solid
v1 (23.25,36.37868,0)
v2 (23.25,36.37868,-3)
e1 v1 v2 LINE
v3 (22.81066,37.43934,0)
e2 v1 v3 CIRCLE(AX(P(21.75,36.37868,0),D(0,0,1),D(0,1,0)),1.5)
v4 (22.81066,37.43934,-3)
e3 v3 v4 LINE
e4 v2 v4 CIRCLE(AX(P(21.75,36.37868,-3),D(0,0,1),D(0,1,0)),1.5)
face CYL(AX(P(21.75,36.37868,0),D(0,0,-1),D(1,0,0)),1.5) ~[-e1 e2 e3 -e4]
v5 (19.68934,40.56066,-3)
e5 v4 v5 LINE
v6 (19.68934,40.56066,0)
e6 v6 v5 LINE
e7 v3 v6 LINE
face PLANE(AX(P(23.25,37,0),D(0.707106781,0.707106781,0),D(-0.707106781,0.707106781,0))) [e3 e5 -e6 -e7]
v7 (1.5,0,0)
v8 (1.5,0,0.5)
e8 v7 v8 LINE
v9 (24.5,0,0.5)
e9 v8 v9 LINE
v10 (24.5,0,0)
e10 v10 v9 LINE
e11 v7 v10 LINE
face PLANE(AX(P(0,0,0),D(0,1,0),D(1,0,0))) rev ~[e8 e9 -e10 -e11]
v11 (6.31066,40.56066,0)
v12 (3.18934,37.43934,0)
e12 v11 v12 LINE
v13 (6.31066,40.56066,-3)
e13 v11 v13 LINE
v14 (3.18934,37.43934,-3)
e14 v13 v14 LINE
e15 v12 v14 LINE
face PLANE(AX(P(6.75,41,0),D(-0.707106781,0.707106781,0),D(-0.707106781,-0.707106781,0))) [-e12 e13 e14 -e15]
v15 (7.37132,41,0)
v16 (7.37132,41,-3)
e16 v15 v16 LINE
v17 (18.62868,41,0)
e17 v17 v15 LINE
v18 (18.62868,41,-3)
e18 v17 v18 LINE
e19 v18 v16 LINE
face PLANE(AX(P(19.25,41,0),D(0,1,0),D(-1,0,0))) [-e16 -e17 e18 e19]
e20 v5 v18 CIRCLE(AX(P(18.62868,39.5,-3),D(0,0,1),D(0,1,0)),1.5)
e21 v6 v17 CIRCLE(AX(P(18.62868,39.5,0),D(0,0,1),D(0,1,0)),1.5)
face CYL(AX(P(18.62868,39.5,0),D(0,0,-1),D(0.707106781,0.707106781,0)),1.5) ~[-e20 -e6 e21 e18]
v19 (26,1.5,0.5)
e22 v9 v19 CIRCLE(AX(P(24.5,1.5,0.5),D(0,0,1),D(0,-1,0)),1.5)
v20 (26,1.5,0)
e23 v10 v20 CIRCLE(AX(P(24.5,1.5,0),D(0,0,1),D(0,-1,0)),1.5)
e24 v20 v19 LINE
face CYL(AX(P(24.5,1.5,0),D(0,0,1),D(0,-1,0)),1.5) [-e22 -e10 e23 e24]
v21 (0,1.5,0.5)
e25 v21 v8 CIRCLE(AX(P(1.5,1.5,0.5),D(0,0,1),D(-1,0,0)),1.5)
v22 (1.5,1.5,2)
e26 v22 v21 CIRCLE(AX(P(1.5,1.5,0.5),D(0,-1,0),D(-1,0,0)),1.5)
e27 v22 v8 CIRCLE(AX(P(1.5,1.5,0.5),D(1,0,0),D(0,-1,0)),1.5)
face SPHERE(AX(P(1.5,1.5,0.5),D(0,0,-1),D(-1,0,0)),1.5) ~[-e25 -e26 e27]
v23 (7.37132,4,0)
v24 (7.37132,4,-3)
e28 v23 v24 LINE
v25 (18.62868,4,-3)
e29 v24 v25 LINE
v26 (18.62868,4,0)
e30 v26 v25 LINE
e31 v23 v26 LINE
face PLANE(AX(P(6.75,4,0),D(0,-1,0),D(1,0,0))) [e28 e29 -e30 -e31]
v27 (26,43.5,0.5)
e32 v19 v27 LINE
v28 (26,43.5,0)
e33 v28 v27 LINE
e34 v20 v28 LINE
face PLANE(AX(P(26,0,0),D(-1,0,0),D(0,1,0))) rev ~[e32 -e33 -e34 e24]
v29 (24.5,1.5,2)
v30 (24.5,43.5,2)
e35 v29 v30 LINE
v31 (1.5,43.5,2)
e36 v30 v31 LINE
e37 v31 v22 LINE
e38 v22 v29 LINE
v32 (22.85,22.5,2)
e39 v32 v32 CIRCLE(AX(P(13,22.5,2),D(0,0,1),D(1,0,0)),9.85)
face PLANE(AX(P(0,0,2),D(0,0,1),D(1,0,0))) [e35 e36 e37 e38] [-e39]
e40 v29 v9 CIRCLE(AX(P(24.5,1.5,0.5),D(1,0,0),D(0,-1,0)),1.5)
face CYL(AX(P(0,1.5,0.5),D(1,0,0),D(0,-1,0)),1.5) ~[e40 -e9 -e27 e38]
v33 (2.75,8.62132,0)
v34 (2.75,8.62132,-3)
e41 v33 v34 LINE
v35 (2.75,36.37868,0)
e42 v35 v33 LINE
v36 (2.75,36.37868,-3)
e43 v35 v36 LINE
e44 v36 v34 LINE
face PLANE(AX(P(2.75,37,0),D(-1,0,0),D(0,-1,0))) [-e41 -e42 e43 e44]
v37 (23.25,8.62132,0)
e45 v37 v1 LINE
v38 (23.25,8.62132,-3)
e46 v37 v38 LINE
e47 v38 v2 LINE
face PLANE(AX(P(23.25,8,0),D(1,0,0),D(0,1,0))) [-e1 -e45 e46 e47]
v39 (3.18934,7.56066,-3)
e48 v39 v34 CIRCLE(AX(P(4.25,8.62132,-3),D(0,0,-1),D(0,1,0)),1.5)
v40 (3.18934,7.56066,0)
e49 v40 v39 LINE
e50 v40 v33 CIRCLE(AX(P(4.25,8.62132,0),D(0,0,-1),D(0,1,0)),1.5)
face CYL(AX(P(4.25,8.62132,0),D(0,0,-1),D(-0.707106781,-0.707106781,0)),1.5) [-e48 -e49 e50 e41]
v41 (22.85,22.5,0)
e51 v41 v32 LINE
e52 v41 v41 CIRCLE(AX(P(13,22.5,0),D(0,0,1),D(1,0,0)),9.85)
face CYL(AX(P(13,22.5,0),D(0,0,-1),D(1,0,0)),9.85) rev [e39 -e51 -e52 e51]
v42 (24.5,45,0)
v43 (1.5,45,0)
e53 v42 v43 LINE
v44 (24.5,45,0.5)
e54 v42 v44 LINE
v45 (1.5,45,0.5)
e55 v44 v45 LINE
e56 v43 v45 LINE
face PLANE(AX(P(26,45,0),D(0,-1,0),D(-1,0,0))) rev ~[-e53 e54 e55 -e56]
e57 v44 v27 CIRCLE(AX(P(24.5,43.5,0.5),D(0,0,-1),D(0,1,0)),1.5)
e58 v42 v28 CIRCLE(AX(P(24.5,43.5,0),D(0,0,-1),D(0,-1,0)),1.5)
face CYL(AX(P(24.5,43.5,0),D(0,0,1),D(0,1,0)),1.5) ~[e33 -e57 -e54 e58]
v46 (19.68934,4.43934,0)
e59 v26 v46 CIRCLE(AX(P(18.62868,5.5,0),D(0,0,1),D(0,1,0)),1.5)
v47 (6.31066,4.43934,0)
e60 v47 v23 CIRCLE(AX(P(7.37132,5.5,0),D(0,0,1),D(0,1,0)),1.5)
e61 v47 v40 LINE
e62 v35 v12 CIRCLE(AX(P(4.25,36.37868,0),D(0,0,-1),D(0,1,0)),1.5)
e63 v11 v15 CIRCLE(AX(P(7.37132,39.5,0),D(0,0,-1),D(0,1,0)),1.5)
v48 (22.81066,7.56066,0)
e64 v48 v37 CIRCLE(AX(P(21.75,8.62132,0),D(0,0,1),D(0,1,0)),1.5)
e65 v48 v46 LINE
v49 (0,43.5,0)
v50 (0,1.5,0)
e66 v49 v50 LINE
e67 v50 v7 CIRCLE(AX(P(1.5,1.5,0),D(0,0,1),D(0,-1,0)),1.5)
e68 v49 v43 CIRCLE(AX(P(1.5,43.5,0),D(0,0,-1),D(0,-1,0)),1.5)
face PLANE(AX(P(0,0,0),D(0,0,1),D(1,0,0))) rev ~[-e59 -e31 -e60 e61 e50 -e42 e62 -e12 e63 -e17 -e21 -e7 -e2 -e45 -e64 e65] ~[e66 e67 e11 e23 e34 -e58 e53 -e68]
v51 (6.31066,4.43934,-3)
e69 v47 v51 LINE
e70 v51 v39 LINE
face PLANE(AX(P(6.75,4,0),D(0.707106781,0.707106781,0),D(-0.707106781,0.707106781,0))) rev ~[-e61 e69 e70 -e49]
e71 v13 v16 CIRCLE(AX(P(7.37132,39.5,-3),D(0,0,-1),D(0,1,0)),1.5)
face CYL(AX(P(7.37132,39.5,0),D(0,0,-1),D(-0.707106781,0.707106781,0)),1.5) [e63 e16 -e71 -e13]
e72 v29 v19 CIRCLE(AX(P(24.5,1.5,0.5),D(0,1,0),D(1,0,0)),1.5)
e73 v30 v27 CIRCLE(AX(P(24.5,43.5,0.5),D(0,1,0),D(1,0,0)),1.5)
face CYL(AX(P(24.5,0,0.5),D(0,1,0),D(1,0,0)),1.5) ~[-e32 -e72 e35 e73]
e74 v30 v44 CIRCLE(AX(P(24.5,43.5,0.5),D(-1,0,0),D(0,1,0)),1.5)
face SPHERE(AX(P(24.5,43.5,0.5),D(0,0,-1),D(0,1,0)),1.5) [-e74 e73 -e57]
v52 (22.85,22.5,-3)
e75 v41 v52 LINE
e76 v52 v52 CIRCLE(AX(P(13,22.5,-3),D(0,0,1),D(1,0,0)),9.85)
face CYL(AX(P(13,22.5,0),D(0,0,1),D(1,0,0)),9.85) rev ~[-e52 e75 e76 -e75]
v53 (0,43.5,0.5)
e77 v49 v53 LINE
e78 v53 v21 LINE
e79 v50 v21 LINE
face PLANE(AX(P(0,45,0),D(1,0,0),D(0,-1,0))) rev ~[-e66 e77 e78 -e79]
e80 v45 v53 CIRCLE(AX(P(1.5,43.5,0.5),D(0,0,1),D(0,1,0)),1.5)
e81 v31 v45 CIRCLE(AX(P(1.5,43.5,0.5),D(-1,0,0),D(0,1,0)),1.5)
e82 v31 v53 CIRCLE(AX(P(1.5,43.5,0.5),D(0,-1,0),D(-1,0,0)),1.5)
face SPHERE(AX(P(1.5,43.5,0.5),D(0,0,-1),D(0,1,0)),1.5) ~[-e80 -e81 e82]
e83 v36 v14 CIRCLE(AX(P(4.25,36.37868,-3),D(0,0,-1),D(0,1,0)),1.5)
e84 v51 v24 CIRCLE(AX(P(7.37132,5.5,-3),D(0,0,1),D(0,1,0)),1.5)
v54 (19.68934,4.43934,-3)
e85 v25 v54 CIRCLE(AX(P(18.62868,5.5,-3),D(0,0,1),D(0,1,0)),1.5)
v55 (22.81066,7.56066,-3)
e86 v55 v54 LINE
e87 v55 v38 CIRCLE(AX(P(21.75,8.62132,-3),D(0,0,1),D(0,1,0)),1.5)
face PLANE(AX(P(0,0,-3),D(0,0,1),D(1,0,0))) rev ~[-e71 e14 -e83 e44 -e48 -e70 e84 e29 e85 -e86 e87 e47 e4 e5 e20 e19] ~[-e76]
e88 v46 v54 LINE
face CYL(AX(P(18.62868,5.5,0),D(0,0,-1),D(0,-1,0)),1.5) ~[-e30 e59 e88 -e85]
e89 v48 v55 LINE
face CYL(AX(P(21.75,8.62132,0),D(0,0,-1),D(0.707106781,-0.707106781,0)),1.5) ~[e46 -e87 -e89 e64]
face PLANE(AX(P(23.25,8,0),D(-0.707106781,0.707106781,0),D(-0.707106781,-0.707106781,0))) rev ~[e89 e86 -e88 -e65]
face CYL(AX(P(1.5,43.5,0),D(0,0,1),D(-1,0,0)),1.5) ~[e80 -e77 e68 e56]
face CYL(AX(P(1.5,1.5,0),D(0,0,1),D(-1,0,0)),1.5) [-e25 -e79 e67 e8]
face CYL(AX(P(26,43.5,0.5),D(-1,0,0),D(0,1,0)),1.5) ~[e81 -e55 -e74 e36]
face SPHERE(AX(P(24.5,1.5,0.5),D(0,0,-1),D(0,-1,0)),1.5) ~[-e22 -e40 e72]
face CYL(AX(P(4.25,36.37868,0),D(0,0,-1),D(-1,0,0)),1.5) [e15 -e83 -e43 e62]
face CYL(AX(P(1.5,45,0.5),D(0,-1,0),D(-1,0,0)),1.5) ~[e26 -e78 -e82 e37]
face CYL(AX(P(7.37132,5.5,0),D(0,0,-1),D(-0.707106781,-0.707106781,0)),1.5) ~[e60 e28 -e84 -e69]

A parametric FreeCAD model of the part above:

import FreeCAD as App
import Part
import Sketcher

V = App.Vector
Q = App.Units.Quantity


def edges_at(feature, points):
    """Names of the edges that pass closest to the given points."""
    edges = feature.Shape.Edges
    near = lambda p: min(range(len(edges)), key=lambda i: edges[i].distToShape(Part.Vertex(*p))[0])
    return sorted({f"Edge{near(p) + 1}" for p in points})


def add_polygon(sketch, points):
    """Adds a closed chain of lines whose ends are joined by coincident constraints."""
    first, n = sketch.GeometryCount, len(points)
    for a, b in zip(points, points[1:] + points[:1]):
        sketch.addGeometry(Part.LineSegment(App.Vector(*a, 0), App.Vector(*b, 0)), False)
    for i in range(n):
        sketch.addConstraint(Sketcher.Constraint("Coincident", first + i, 2, first + (i + 1) % n, 1))

doc = App.newDocument("Part")
params = doc.addObject("Spreadsheet::Sheet", "Params")
for row, (alias, value) in enumerate([
    ("sketch1_diameter", "19.7 mm"),
    ("sketch1_width", "26 mm"),
    ("sketch1_height", "45 mm"),
    ("pad1_length", "2 mm"),
    ("sketch2_diameter", "19.7 mm"),
    ("pad2_length", "3 mm"),
    ("fillet_radius", "1.5 mm"),
], start=1):
    params.set(f"A{row}", alias)
    params.set(f"B{row}", "=" + value)
    params.setAlias(f"B{row}", alias)

body = doc.addObject("PartDesign::Body", "Body")

sketch1 = body.newObject("Sketcher::SketchObject", "Sketch")
sketch1.AttachmentSupport = (doc.getObject("XY_Plane"), [""])
sketch1.MapMode = "FlatFace"
add_polygon(sketch1, [(0, 45), (0, 0), (26, 0), (26, 45)])
sketch1.addGeometry(Part.Circle(V(13, 22, 0), V(0, 0, 1), 10), False)
sketch1.addConstraint([
    Sketcher.Constraint("Vertical", 0),
    Sketcher.Constraint("Horizontal", 1),
    Sketcher.Constraint("Vertical", 2),
    Sketcher.Constraint("Horizontal", 3),
    Sketcher.Constraint("Coincident", 0, 2, -1, 1),
    Sketcher.Constraint("Diameter", 4, Q("19.7 mm")),
    Sketcher.Constraint("DistanceX", 1, 1, 1, 2, Q("26 mm")),
    Sketcher.Constraint("DistanceY", 0, 2, 0, 1, Q("45 mm")),
    Sketcher.Constraint("DistanceX", -1, 1, 4, 3, Q("13 mm")),
    Sketcher.Constraint("DistanceY", -1, 1, 4, 3, Q("22.5 mm")),
])
sketch1.setExpression("Constraints[9]", "Params.sketch1_diameter")
sketch1.setExpression("Constraints[10]", "Params.sketch1_width")
sketch1.setExpression("Constraints[11]", "Params.sketch1_height")
pad1 = body.newObject("PartDesign::Pad", "Pad")
pad1.Profile = sketch1
pad1.setExpression("Length", "Params.pad1_length")

sketch2 = body.newObject("Sketcher::SketchObject", "Sketch001")
sketch2.AttachmentSupport = (doc.getObject("XY_Plane"), [""])
sketch2.MapMode = "FlatFace"
add_polygon(sketch2, [(3, 8), (7, 4), (19, 4), (23, 8), (23, 37), (19, 41), (7, 41), (3, 37)])
sketch2.addGeometry(Part.Circle(V(13, 22, 0), V(0, 0, 1), 10), False)
sketch2.addConstraint([
    Sketcher.Constraint("Horizontal", 1),
    Sketcher.Constraint("Vertical", 3),
    Sketcher.Constraint("Horizontal", 5),
    Sketcher.Constraint("Vertical", 7),
    Sketcher.Constraint("Perpendicular", 0, 2),
    Sketcher.Constraint("Perpendicular", 2, 4),
    Sketcher.Constraint("Perpendicular", 4, 6),
    Sketcher.Constraint("Horizontal", 3, 2, 6, 2),
    Sketcher.Constraint("Horizontal", 2, 2, 7, 2),
    Sketcher.Constraint("Vertical", 1, 2, 4, 2),
    Sketcher.Constraint("Vertical", 0, 2, 5, 2),
    Sketcher.Constraint("Diameter", 8, Q("19.7 mm")),
    Sketcher.Constraint("DistanceY", -1, 1, 0, 2, Q("4 mm")),
    Sketcher.Constraint("DistanceY", -1, 1, 3, 2, Q("37 mm")),
    Sketcher.Constraint("DistanceX", 1, 2, 2, 2, Q("4 mm")),
    Sketcher.Constraint("DistanceX", 6, 2, 3, 2, Q("20.5 mm")),
    Sketcher.Constraint("DistanceX", -1, 1, 6, 2, Q("2.75 mm")),
    Sketcher.Constraint("DistanceX", -1, 1, 8, 3, Q("13 mm")),
    Sketcher.Constraint("DistanceY", -1, 1, 8, 3, Q("22.5 mm")),
])
sketch2.setExpression("Constraints[19]", "Params.sketch2_diameter")
pad2 = body.newObject("PartDesign::Pad", "Pad001")
pad2.Profile = sketch2
pad2.setExpression("Length", "Params.pad2_length")
pad2.Reversed = True
doc.recompute()

fillet = body.newObject("PartDesign::Fillet", "Fillet")
fillet.Base = (pad2, edges_at(pad2, [
    (26, 0, 1),
    (0, 0, 1),
    (0, 45, 1),
    (26, 45, 1),
    (6.75, 41, -1.5),
    (2.75, 37, -1.5),
    (19.25, 41, -1.5),
    (23.25, 37, -1.5),
    (23.25, 8, -1.5),
    (19.25, 4, -1.5),
    (6.75, 4, -1.5),
    (2.75, 8, -1.5),
    (13, 45, 2),
    (0, 22.5, 2),
    (13, 0, 2),
    (26, 22.5, 2),
]))
fillet.setExpression("Radius", "Params.fillet_radius")

doc.recompute()
